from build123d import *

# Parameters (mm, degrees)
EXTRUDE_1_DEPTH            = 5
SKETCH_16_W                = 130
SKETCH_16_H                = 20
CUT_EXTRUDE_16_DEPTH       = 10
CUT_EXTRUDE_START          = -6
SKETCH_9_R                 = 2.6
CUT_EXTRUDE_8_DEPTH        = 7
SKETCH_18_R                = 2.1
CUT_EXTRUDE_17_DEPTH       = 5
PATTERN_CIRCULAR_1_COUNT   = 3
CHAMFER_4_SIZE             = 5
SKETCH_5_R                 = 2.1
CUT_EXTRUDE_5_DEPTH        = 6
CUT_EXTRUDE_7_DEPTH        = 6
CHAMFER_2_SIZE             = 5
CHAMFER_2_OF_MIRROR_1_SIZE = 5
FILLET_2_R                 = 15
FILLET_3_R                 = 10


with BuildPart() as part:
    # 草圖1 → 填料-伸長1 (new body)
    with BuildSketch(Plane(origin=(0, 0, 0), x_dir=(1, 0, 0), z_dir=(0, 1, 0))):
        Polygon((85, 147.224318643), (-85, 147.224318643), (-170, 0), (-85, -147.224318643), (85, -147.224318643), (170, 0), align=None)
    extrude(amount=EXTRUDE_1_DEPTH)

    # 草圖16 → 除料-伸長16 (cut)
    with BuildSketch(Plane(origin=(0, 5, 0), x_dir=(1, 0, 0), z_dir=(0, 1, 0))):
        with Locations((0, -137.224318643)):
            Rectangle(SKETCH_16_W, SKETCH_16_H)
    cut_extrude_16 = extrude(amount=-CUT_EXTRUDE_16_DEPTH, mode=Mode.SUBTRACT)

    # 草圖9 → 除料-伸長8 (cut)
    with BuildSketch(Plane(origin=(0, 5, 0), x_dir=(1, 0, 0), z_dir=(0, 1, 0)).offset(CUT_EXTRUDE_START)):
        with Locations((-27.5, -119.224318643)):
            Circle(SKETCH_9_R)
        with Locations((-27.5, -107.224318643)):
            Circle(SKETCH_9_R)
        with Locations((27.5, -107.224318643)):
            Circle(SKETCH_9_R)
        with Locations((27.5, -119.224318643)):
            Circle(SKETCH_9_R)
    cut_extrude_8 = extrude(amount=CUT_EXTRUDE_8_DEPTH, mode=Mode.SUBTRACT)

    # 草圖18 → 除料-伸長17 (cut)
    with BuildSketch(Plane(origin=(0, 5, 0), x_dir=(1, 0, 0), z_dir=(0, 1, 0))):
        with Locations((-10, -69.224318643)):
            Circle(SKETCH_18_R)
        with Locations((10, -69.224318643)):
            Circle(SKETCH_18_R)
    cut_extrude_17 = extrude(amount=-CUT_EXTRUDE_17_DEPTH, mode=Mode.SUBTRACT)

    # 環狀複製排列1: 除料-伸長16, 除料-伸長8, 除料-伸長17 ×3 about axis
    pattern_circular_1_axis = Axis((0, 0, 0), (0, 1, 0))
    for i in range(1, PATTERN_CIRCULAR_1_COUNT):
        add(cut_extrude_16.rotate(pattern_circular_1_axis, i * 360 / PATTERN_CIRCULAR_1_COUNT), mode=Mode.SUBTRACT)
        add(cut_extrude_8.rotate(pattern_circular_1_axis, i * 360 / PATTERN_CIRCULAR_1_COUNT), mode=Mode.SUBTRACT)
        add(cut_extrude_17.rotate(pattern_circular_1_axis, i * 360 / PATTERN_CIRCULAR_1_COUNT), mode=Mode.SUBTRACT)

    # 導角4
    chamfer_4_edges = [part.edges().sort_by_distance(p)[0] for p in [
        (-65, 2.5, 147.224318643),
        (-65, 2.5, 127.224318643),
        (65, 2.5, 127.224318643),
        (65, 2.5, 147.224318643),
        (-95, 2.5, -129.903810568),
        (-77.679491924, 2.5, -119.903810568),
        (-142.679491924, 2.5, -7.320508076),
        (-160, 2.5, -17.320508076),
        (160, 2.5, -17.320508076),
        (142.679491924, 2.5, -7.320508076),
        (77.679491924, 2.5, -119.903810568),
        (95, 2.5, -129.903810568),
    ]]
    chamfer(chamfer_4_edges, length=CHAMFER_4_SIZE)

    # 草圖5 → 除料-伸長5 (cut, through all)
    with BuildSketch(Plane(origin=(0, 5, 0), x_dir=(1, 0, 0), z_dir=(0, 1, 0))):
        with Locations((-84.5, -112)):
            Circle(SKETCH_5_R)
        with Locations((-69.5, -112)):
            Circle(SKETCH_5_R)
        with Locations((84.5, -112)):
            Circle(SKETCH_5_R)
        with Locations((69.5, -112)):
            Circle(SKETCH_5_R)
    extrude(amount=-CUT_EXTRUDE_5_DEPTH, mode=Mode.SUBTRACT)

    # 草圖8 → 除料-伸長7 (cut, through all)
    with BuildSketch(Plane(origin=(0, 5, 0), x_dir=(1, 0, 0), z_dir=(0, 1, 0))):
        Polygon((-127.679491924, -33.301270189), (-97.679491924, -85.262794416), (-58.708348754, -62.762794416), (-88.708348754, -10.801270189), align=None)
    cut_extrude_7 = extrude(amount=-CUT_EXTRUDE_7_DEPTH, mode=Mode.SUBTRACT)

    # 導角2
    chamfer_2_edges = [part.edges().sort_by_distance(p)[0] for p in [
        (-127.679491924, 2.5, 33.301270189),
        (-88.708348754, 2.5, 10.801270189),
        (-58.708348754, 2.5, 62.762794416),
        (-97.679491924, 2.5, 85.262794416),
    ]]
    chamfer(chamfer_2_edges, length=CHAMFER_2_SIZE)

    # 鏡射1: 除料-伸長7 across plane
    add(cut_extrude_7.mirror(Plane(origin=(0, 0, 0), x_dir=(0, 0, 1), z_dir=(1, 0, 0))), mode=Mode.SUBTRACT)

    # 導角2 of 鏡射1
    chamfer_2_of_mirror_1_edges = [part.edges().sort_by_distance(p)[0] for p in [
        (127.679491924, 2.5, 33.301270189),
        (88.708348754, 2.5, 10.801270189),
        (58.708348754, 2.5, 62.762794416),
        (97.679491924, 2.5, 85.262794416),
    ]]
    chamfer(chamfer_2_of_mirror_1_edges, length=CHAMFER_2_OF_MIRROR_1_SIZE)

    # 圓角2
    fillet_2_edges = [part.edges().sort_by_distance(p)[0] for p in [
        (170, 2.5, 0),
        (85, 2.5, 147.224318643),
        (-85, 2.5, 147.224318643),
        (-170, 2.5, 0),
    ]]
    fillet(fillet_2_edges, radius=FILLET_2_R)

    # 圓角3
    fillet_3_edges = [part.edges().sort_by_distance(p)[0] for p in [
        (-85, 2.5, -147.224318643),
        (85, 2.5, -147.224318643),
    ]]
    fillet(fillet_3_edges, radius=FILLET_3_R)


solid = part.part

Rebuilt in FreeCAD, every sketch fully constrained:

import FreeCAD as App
import Part
import Sketcher

V = App.Vector
Q = App.Units.Quantity


def edges_at(feature, points):
    """Names of the edges that pass closest to the given points."""
    edges = feature.Shape.Edges
    near = lambda p: min(range(len(edges)), key=lambda i: edges[i].distToShape(Part.Vertex(*p))[0])
    return sorted({f"Edge{near(p) + 1}" for p in points})


def add_polygon(sketch, points):
    """Adds a closed chain of lines whose ends are joined by coincident constraints."""
    first, n = sketch.GeometryCount, len(points)
    for a, b in zip(points, points[1:] + points[:1]):
        sketch.addGeometry(Part.LineSegment(App.Vector(*a, 0), App.Vector(*b, 0)), False)
    for i in range(n):
        sketch.addConstraint(Sketcher.Constraint("Coincident", first + i, 2, first + (i + 1) % n, 1))

doc = App.newDocument("Part")
body = doc.addObject("PartDesign::Body", "Body")

# Sketch on XZ plane
sketch1 = body.newObject("Sketcher::SketchObject", "Sketch")
sketch1.AttachmentSupport = (doc.getObject("XZ_Plane"), [""])
sketch1.MapMode = "FlatFace"
add_polygon(sketch1, [(85, -147.224319), (-85, -147.224319), (-170, 0), (-85, 147.224319), (85, 147.224319), (170, 0)])  # lines 0-5
sketch1.addConstraint(Sketcher.Constraint("Horizontal", 0))
sketch1.addConstraint(Sketcher.Constraint("Horizontal", 3))
sketch1.addConstraint(Sketcher.Constraint("Symmetric", 0, 2, 3, 2, -1, 1))
sketch1.addConstraint(Sketcher.Constraint("Symmetric", 1, 2, 4, 2, -1, 1))
sketch1.addConstraint(Sketcher.Constraint("PointOnObject", 1, 2, -1))
sketch1.addConstraint(Sketcher.Constraint("Parallel", 2, 5))
sketch1.addConstraint(Sketcher.Constraint("Vertical", 0, 2, 2, 2))
sketch1.addConstraint(Sketcher.Constraint("DistanceX", 0, 2, 0, 1, 170.0))
sketch1.addConstraint(Sketcher.Constraint("Angle", 1, Q("120 deg")))
sketch1.addConstraint(Sketcher.Constraint("Distance", 1, 170.0))
pad1 = body.newObject("PartDesign::Pad", "Pad")
pad1.Profile = sketch1
pad1.Length = 5
pad1.Reversed = True

# Sketch on XZ plane
sketch2 = body.newObject("Sketcher::SketchObject", "Sketch001")
sketch2.AttachmentSupport = (doc.getObject("XZ_Plane"), [""])
sketch2.MapMode = "FlatFace"
sketch2.AttachmentOffset = App.Placement(V(0, 0, -5), App.Rotation())
add_polygon(sketch2, [(-65, 127.224319), (-65, 147.224319), (65, 147.224319), (65, 127.224319)])  # lines 0-3
sketch2.addConstraint(Sketcher.Constraint("Vertical", 0))
sketch2.addConstraint(Sketcher.Constraint("Horizontal", 1))
sketch2.addConstraint(Sketcher.Constraint("Vertical", 2))
sketch2.addConstraint(Sketcher.Constraint("Horizontal", 3))
sketch2.addConstraint(Sketcher.Constraint("DistanceX", 1, 1, 1, 2, 130.0))
sketch2.addConstraint(Sketcher.Constraint("DistanceY", 0, 1, 0, 2, 20.0))
sketch2.addConstraint(Sketcher.Constraint("DistanceX", 0, 2, -1, 1, 65.0))
sketch2.addConstraint(Sketcher.Constraint("DistanceY", -1, 1, 0, 2, 147.224319))
pocket1 = body.newObject("PartDesign::Pocket", "Pocket")
pocket1.Profile = sketch2
pocket1.Length = 10
pocket1.Reversed = True

# Sketch on XZ plane
sketch3 = body.newObject("Sketcher::SketchObject", "Sketch002")
sketch3.AttachmentSupport = (doc.getObject("XZ_Plane"), [""])
sketch3.MapMode = "FlatFace"
sketch3.AttachmentOffset = App.Placement(V(0, 0, 1), App.Rotation())
sketch3.addGeometry(Part.Circle(V(-27.5, 119.224319, 0), V(0, 0, 1), 2.6), False)
sketch3.addGeometry(Part.Circle(V(-27.5, 107.224319, 0), V(0, 0, 1), 2.6), False)
sketch3.addGeometry(Part.Circle(V(27.5, 107.224319, 0), V(0, 0, 1), 2.6), False)
sketch3.addGeometry(Part.Circle(V(27.5, 119.224319, 0), V(0, 0, 1), 2.6), False)
sketch3.addConstraint(Sketcher.Constraint("Equal", 0, 1))
sketch3.addConstraint(Sketcher.Constraint("Equal", 1, 2))
sketch3.addConstraint(Sketcher.Constraint("Equal", 2, 3))
sketch3.addConstraint(Sketcher.Constraint("Symmetric", 1, 3, 2, 3, -2))
sketch3.addConstraint(Sketcher.Constraint("Symmetric", 0, 3, 3, 3, -2))
sketch3.addConstraint(Sketcher.Constraint("Vertical", 0, 3, 1, 3))
sketch3.addConstraint(Sketcher.Constraint("Diameter", 0, 5.2))
sketch3.addConstraint(Sketcher.Constraint("DistanceY", 1, 3, 0, 3, 12.0))
sketch3.addConstraint(Sketcher.Constraint("DistanceX", 1, 3, 2, 3, 55.0))
sketch3.addConstraint(Sketcher.Constraint("DistanceY", -1, 1, 0, 3, 119.224319))
pocket2 = body.newObject("PartDesign::Pocket", "Pocket001")
pocket2.Profile = sketch3
pocket2.Length = 7

# Sketch on XZ plane
sketch4 = body.newObject("Sketcher::SketchObject", "Sketch003")
sketch4.AttachmentSupport = (doc.getObject("XZ_Plane"), [""])
sketch4.MapMode = "FlatFace"
sketch4.AttachmentOffset = App.Placement(V(0, 0, -5), App.Rotation())
sketch4.addGeometry(Part.Circle(V(-10, 69.224319, 0), V(0, 0, 1), 2.1), False)
sketch4.addGeometry(Part.Circle(V(10, 69.224319, 0), V(0, 0, 1), 2.1), False)
sketch4.addConstraint(Sketcher.Constraint("Equal", 0, 1))
sketch4.addConstraint(Sketcher.Constraint("Symmetric", 0, 3, 1, 3, -2))
sketch4.addConstraint(Sketcher.Constraint("Diameter", 0, 4.2))
sketch4.addConstraint(Sketcher.Constraint("DistanceX", 0, 3, -1, 1, 10.0))
sketch4.addConstraint(Sketcher.Constraint("DistanceY", -1, 1, 0, 3, 69.224319))
pocket3 = body.newObject("PartDesign::Pocket", "Pocket002")
pocket3.Profile = sketch4
pocket3.Length = 5
pocket3.Reversed = True
doc.recompute()

polarpattern = body.newObject("PartDesign::PolarPattern", "PolarPattern")
polarpattern.Originals = [pocket1, pocket2, pocket3]
polarpattern.Axis = (doc.getObject("Y_Axis"), [""])
polarpattern.Angle = 360
polarpattern.Occurrences = 3
body.Tip = polarpattern
doc.recompute()

chamfer = body.newObject("PartDesign::Chamfer", "Chamfer")
chamfer.Base = (polarpattern, edges_at(polarpattern, [
    (-65, 2.5, 147.224),
    (-65, 2.5, 127.224),
    (65, 2.5, 127.224),
    (65, 2.5, 147.224),
    (-95, 2.5, -129.904),
    (-77.679, 2.5, -119.904),
    (-142.679, 2.5, -7.321),
    (-160, 2.5, -17.321),
    (160, 2.5, -17.321),
    (142.679, 2.5, -7.321),
    (77.679, 2.5, -119.904),
    (95, 2.5, -129.904),
]))
chamfer.Size = 5

# Sketch on XZ plane
sketch5 = body.newObject("Sketcher::SketchObject", "Sketch004")
sketch5.AttachmentSupport = (doc.getObject("XZ_Plane"), [""])
sketch5.MapMode = "FlatFace"
sketch5.AttachmentOffset = App.Placement(V(0, 0, -5), App.Rotation())
sketch5.addGeometry(Part.Circle(V(-84.5, 112, 0), V(0, 0, 1), 2.1), False)
sketch5.addGeometry(Part.Circle(V(-69.5, 112, 0), V(0, 0, 1), 2.1), False)
sketch5.addGeometry(Part.Circle(V(84.5, 112, 0), V(0, 0, 1), 2.1), False)
sketch5.addGeometry(Part.Circle(V(69.5, 112, 0), V(0, 0, 1), 2.1), False)
sketch5.addConstraint(Sketcher.Constraint("Equal", 0, 1))
sketch5.addConstraint(Sketcher.Constraint("Equal", 1, 2))
sketch5.addConstraint(Sketcher.Constraint("Equal", 2, 3))
sketch5.addConstraint(Sketcher.Constraint("Symmetric", 0, 3, 2, 3, -2))
sketch5.addConstraint(Sketcher.Constraint("Symmetric", 1, 3, 3, 3, -2))
sketch5.addConstraint(Sketcher.Constraint("Horizontal", 0, 3, 1, 3))
sketch5.addConstraint(Sketcher.Constraint("Diameter", 0, 4.2))
sketch5.addConstraint(Sketcher.Constraint("DistanceY", -1, 1, 0, 3, 112.0))
sketch5.addConstraint(Sketcher.Constraint("DistanceX", 0, 3, 1, 3, 15.0))
sketch5.addConstraint(Sketcher.Constraint("DistanceX", 1, 3, 2, 3, 154.0))
pocket4 = body.newObject("PartDesign::Pocket", "Pocket003")
pocket4.Profile = sketch5
pocket4.Type = "ThroughAll"
pocket4.Reversed = True

# Sketch on XZ plane
sketch6 = body.newObject("Sketcher::SketchObject", "Sketch005")
sketch6.AttachmentSupport = (doc.getObject("XZ_Plane"), [""])
sketch6.MapMode = "FlatFace"
sketch6.AttachmentOffset = App.Placement(V(0, 0, -5), App.Rotation())
add_polygon(sketch6, [(-127.679492, 33.30127), (-97.679492, 85.262794), (-58.708349, 62.762794), (-88.708349, 10.80127)])  # lines 0-3
sketch6.addConstraint(Sketcher.Constraint("Perpendicular", 0, 1))
sketch6.addConstraint(Sketcher.Constraint("Perpendicular", 1, 2))
sketch6.addConstraint(Sketcher.Constraint("Perpendicular", 2, 3))
sketch6.addConstraint(Sketcher.Constraint("Angle", 0, Q("60 deg")))
sketch6.addConstraint(Sketcher.Constraint("Distance", 0, 60.0))
sketch6.addConstraint(Sketcher.Constraint("Distance", 1, 45.0))
sketch6.addConstraint(Sketcher.Constraint("DistanceX", 0, 2, -1, 1, 97.679492))
sketch6.addConstraint(Sketcher.Constraint("DistanceY", -1, 1, 2, 2, 10.80127))
pocket5 = body.newObject("PartDesign::Pocket", "Pocket004")
pocket5.Profile = sketch6
pocket5.Type = "ThroughAll"
pocket5.Reversed = True
doc.recompute()

chamfer2 = body.newObject("PartDesign::Chamfer", "Chamfer001")
chamfer2.Base = (pocket5, edges_at(pocket5, [
    (-127.679, 2.5, 33.301),
    (-88.708, 2.5, 10.801),
    (-58.708, 2.5, 62.763),
    (-97.679, 2.5, 85.263),
]))
chamfer2.Size = 5
doc.recompute()

mirrored = body.newObject("PartDesign::Mirrored", "Mirrored")
mirrored.Originals = [pocket5]
mirrored.MirrorPlane = (doc.getObject("YZ_Plane"), [""])
body.Tip = mirrored
doc.recompute()

chamfer3 = body.newObject("PartDesign::Chamfer", "Chamfer002")
chamfer3.Base = (mirrored, edges_at(mirrored, [
    (127.679, 2.5, 33.301),
    (88.708, 2.5, 10.801),
    (58.708, 2.5, 62.763),
    (97.679, 2.5, 85.263),
]))
chamfer3.Size = 5
doc.recompute()

fillet = body.newObject("PartDesign::Fillet", "Fillet")
fillet.Base = (chamfer3, edges_at(chamfer3, [
    (170, 2.5, 0),
    (85, 2.5, 147.224),
    (-85, 2.5, 147.224),
    (-170, 2.5, 0),
]))
fillet.Radius = 15
doc.recompute()

fillet2 = body.newObject("PartDesign::Fillet", "Fillet001")
fillet2.Base = (fillet, edges_at(fillet, [(-85, 2.5, -147.224), (85, 2.5, -147.224)]))
fillet2.Radius = 10

doc.recompute()
